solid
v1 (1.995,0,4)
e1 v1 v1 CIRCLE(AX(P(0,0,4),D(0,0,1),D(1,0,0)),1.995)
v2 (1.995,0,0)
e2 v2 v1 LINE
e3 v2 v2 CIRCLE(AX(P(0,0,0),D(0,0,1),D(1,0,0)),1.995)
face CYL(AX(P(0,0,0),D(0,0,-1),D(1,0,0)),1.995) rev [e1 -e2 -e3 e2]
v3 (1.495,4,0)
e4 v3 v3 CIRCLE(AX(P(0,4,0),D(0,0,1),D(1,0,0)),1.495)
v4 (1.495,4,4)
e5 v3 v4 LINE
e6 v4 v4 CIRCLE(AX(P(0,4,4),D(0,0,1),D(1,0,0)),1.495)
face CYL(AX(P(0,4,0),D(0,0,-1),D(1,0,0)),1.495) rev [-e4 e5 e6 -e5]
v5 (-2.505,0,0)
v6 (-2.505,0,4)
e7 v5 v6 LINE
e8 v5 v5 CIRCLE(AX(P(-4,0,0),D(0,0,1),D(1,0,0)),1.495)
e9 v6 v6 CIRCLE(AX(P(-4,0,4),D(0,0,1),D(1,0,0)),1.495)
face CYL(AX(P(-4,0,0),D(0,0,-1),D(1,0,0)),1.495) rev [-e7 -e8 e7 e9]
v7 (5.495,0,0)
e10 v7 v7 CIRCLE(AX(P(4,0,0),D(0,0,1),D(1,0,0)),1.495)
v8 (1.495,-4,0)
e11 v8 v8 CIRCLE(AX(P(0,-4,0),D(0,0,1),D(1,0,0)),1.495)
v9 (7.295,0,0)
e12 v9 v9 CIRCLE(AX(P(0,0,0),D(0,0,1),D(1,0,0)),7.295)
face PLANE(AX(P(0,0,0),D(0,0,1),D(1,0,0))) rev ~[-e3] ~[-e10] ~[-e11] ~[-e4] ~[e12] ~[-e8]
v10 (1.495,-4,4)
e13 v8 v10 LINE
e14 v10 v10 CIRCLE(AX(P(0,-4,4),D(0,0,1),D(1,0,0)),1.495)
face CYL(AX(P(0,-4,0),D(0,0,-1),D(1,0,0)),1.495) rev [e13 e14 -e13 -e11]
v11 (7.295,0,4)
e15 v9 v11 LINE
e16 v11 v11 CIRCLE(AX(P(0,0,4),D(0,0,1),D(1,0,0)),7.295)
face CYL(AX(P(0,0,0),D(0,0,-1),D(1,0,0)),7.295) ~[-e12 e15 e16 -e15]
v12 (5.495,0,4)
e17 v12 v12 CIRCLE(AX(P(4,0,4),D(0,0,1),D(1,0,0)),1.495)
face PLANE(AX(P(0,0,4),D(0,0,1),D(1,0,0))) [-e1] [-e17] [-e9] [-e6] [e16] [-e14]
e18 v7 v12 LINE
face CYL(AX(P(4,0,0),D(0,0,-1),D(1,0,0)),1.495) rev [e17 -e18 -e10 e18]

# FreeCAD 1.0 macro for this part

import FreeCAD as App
import Part
import Sketcher

doc = App.newDocument("Part")
body = doc.addObject("PartDesign::Body", "Body")

sketch1 = body.newObject("Sketcher::SketchObject", "Sketch")
sketch1.AttachmentSupport = (doc.getObject("XY_Plane"), [""])
sketch1.MapMode = "FlatFace"
sketch1.addGeometry([
    Part.Circle(App.Vector(0, 0, 0), App.Vector(0, 0, 1), 7.3),
    Part.Circle(App.Vector(0, -4, 0), App.Vector(0, 0, 1), 1.5),
    Part.Circle(App.Vector(-4, 0, 0), App.Vector(0, 0, 1), 1.5),
    Part.Circle(App.Vector(0, 0, 0), App.Vector(0, 0, 1), 2),
    Part.Circle(App.Vector(4, 0, 0), App.Vector(0, 0, 1), 1.5),
    Part.Circle(App.Vector(0, 4, 0), App.Vector(0, 0, 1), 1.5),
], False)
sketch1.addConstraint([
    Sketcher.Constraint("Coincident", 0, 3, -1, 1),
    Sketcher.Constraint("Coincident", 3, 3, -1, 1),
    Sketcher.Constraint("Equal", 1, 2),
    Sketcher.Constraint("Equal", 2, 4),
    Sketcher.Constraint("Equal", 4, 5),
    Sketcher.Constraint("Symmetric", 2, 3, 4, 3, -1, 1),
    Sketcher.Constraint("Symmetric", 1, 3, 5, 3, -1, 1),
    Sketcher.Constraint("PointOnObject", 1, 3, -2),
    Sketcher.Constraint("PointOnObject", 2, 3, -1),
    Sketcher.Constraint("Diameter", 0, 14.59),
    Sketcher.Constraint("Diameter", 1, 2.99),
    Sketcher.Constraint("Diameter", 3, 3.99),
    Sketcher.Constraint("DistanceY", 1, 3, -1, 1, 4.0),
    Sketcher.Constraint("DistanceX", 2, 3, -1, 1, 4.0),
])
pad1 = body.newObject("PartDesign::Pad", "Pad")
pad1.Profile = sketch1
pad1.Length = 4

doc.recompute()
